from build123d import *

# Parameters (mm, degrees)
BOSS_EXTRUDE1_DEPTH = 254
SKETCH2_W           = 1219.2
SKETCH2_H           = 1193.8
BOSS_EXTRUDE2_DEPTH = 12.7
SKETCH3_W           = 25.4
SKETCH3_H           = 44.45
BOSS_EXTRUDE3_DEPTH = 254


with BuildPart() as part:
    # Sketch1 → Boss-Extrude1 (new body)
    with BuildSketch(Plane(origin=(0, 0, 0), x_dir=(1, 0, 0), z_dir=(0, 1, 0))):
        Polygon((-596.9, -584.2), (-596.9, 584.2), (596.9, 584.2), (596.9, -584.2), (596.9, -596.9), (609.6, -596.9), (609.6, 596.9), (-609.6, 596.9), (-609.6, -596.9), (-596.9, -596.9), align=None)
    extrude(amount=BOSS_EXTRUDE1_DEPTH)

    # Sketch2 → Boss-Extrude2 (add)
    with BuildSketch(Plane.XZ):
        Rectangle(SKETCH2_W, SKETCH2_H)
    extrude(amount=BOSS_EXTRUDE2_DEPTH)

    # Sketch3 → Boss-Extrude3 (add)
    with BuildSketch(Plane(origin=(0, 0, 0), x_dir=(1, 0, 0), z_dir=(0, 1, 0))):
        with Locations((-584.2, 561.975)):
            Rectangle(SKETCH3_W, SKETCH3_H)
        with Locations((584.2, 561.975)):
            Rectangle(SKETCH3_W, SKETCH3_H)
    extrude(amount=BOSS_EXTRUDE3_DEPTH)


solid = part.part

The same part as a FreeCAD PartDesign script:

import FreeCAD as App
import Part
import Sketcher
from FreeCAD import Vector
Q = App.Units.Quantity

doc = App.newDocument("Part")
body = doc.addObject("PartDesign::Body", "Body")

sketch1 = body.newObject("Sketcher::SketchObject", "Sketch")
sketch1.AttachmentSupport = (doc.getObject("XZ_Plane"), [""])
sketch1.MapMode = "FlatFace"
sketch1.addGeometry([
    Part.LineSegment(Vector(-597, -584, 0), Vector(597, -584, 0)),
    Part.LineSegment(Vector(597, -584, 0), Vector(597, 597, 0)),
    Part.LineSegment(Vector(597, 597, 0), Vector(610, 597, 0)),
    Part.LineSegment(Vector(610, 597, 0), Vector(610, -597, 0)),
    Part.LineSegment(Vector(610, -597, 0), Vector(-610, -597, 0)),
    Part.LineSegment(Vector(-610, -597, 0), Vector(-610, 597, 0)),
    Part.LineSegment(Vector(-610, 597, 0), Vector(-597, 597, 0)),
    Part.LineSegment(Vector(-597, 597, 0), Vector(-597, -584, 0)),
], False)
sketch1.addConstraint([
    Sketcher.Constraint("Coincident", 0, 2, 1, 1),
    Sketcher.Constraint("Coincident", 1, 2, 2, 1),
    Sketcher.Constraint("Coincident", 2, 2, 3, 1),
    Sketcher.Constraint("Coincident", 3, 2, 4, 1),
    Sketcher.Constraint("Coincident", 4, 2, 5, 1),
    Sketcher.Constraint("Coincident", 5, 2, 6, 1),
    Sketcher.Constraint("Coincident", 6, 2, 7, 1),
    Sketcher.Constraint("Coincident", 7, 2, 0, 1),
    Sketcher.Constraint("Horizontal", 0),
    Sketcher.Constraint("Vertical", 1),
    Sketcher.Constraint("Horizontal", 2),
    Sketcher.Constraint("Vertical", 3),
    Sketcher.Constraint("Horizontal", 4),
    Sketcher.Constraint("Vertical", 5),
    Sketcher.Constraint("Horizontal", 6),
    Sketcher.Constraint("Vertical", 7),
    Sketcher.Constraint("Symmetric", 2, 2, 4, 2, -1, 1),
    Sketcher.Constraint("Symmetric", 1, 2, 6, 2, -2),
    Sketcher.Constraint("Equal", 0, 3),
    Sketcher.Constraint("DistanceX", 0, 1, 0, 2, Q("47 in")),
    Sketcher.Constraint("DistanceX", 4, 2, 4, 1, Q("48 in")),
    Sketcher.Constraint("DistanceY", 1, 1, 1, 2, Q("46.5 in")),
])
pad1 = body.newObject("PartDesign::Pad", "Pad")
pad1.Profile = sketch1
pad1.Length = Q("10 in")
pad1.Reversed = True

sketch2 = body.newObject("Sketcher::SketchObject", "Sketch001")
sketch2.AttachmentSupport = (doc.getObject("XZ_Plane"), [""])
sketch2.MapMode = "FlatFace"
sketch2.addGeometry([
    Part.LineSegment(Vector(-610, 597, 0), Vector(-610, -597, 0)),
    Part.LineSegment(Vector(-610, -597, 0), Vector(610, -597, 0)),
    Part.LineSegment(Vector(610, -597, 0), Vector(610, 597, 0)),
    Part.LineSegment(Vector(610, 597, 0), Vector(-610, 597, 0)),
], False)
sketch2.addConstraint([
    Sketcher.Constraint("Coincident", 0, 2, 1, 1),
    Sketcher.Constraint("Coincident", 1, 2, 2, 1),
    Sketcher.Constraint("Coincident", 2, 2, 3, 1),
    Sketcher.Constraint("Coincident", 3, 2, 0, 1),
    Sketcher.Constraint("Vertical", 0),
    Sketcher.Constraint("Horizontal", 1),
    Sketcher.Constraint("Vertical", 2),
    Sketcher.Constraint("Horizontal", 3),
    Sketcher.Constraint("Symmetric", 0, 2, 2, 2, -1, 1),
    Sketcher.Constraint("DistanceX", 1, 1, 1, 2, Q("48 in")),
    Sketcher.Constraint("DistanceY", 0, 2, 0, 1, Q("47 in")),
])
pad2 = body.newObject("PartDesign::Pad", "Pad001")
pad2.Profile = sketch2
pad2.Length = Q("0.5 in")

sketch3 = body.newObject("Sketcher::SketchObject", "Sketch002")
sketch3.AttachmentSupport = (doc.getObject("XZ_Plane"), [""])
sketch3.MapMode = "FlatFace"
sketch3.addGeometry([
    Part.LineSegment(Vector(-597, -584, 0), Vector(-597, -540, 0)),
    Part.LineSegment(Vector(-597, -540, 0), Vector(-572, -540, 0)),
    Part.LineSegment(Vector(-572, -540, 0), Vector(-572, -584, 0)),
    Part.LineSegment(Vector(-572, -584, 0), Vector(-597, -584, 0)),
    Part.LineSegment(Vector(572, -584, 0), Vector(572, -540, 0)),
    Part.LineSegment(Vector(572, -540, 0), Vector(597, -540, 0)),
    Part.LineSegment(Vector(597, -540, 0), Vector(597, -584, 0)),
    Part.LineSegment(Vector(597, -584, 0), Vector(572, -584, 0)),
], False)
sketch3.addConstraint([
    Sketcher.Constraint("Coincident", 0, 2, 1, 1),
    Sketcher.Constraint("Coincident", 1, 2, 2, 1),
    Sketcher.Constraint("Coincident", 2, 2, 3, 1),
    Sketcher.Constraint("Coincident", 3, 2, 0, 1),
    Sketcher.Constraint("Coincident", 4, 2, 5, 1),
    Sketcher.Constraint("Coincident", 5, 2, 6, 1),
    Sketcher.Constraint("Coincident", 6, 2, 7, 1),
    Sketcher.Constraint("Coincident", 7, 2, 4, 1),
    Sketcher.Constraint("Vertical", 0),
    Sketcher.Constraint("Horizontal", 1),
    Sketcher.Constraint("Vertical", 2),
    Sketcher.Constraint("Horizontal", 3),
    Sketcher.Constraint("Vertical", 4),
    Sketcher.Constraint("Horizontal", 5),
    Sketcher.Constraint("Vertical", 6),
    Sketcher.Constraint("Horizontal", 7),
    Sketcher.Constraint("Symmetric", 1, 2, 4, 2, -2),
    Sketcher.Constraint("Symmetric", 3, 2, 6, 2, -2),
    Sketcher.Constraint("DistanceX", 1, 1, 1, 2, Q("1 in")),
    Sketcher.Constraint("DistanceY", 2, 2, -1, 1, Q("23 in")),
    Sketcher.Constraint("DistanceX", 1, 2, 4, 2, Q("45 in")),
    Sketcher.Constraint("DistanceY", 0, 1, 0, 2, Q("1.75 in")),
])
pad3 = body.newObject("PartDesign::Pad", "Pad002")
pad3.Profile = sketch3
pad3.Length = Q("10 in")
pad3.Reversed = True

doc.recompute()
